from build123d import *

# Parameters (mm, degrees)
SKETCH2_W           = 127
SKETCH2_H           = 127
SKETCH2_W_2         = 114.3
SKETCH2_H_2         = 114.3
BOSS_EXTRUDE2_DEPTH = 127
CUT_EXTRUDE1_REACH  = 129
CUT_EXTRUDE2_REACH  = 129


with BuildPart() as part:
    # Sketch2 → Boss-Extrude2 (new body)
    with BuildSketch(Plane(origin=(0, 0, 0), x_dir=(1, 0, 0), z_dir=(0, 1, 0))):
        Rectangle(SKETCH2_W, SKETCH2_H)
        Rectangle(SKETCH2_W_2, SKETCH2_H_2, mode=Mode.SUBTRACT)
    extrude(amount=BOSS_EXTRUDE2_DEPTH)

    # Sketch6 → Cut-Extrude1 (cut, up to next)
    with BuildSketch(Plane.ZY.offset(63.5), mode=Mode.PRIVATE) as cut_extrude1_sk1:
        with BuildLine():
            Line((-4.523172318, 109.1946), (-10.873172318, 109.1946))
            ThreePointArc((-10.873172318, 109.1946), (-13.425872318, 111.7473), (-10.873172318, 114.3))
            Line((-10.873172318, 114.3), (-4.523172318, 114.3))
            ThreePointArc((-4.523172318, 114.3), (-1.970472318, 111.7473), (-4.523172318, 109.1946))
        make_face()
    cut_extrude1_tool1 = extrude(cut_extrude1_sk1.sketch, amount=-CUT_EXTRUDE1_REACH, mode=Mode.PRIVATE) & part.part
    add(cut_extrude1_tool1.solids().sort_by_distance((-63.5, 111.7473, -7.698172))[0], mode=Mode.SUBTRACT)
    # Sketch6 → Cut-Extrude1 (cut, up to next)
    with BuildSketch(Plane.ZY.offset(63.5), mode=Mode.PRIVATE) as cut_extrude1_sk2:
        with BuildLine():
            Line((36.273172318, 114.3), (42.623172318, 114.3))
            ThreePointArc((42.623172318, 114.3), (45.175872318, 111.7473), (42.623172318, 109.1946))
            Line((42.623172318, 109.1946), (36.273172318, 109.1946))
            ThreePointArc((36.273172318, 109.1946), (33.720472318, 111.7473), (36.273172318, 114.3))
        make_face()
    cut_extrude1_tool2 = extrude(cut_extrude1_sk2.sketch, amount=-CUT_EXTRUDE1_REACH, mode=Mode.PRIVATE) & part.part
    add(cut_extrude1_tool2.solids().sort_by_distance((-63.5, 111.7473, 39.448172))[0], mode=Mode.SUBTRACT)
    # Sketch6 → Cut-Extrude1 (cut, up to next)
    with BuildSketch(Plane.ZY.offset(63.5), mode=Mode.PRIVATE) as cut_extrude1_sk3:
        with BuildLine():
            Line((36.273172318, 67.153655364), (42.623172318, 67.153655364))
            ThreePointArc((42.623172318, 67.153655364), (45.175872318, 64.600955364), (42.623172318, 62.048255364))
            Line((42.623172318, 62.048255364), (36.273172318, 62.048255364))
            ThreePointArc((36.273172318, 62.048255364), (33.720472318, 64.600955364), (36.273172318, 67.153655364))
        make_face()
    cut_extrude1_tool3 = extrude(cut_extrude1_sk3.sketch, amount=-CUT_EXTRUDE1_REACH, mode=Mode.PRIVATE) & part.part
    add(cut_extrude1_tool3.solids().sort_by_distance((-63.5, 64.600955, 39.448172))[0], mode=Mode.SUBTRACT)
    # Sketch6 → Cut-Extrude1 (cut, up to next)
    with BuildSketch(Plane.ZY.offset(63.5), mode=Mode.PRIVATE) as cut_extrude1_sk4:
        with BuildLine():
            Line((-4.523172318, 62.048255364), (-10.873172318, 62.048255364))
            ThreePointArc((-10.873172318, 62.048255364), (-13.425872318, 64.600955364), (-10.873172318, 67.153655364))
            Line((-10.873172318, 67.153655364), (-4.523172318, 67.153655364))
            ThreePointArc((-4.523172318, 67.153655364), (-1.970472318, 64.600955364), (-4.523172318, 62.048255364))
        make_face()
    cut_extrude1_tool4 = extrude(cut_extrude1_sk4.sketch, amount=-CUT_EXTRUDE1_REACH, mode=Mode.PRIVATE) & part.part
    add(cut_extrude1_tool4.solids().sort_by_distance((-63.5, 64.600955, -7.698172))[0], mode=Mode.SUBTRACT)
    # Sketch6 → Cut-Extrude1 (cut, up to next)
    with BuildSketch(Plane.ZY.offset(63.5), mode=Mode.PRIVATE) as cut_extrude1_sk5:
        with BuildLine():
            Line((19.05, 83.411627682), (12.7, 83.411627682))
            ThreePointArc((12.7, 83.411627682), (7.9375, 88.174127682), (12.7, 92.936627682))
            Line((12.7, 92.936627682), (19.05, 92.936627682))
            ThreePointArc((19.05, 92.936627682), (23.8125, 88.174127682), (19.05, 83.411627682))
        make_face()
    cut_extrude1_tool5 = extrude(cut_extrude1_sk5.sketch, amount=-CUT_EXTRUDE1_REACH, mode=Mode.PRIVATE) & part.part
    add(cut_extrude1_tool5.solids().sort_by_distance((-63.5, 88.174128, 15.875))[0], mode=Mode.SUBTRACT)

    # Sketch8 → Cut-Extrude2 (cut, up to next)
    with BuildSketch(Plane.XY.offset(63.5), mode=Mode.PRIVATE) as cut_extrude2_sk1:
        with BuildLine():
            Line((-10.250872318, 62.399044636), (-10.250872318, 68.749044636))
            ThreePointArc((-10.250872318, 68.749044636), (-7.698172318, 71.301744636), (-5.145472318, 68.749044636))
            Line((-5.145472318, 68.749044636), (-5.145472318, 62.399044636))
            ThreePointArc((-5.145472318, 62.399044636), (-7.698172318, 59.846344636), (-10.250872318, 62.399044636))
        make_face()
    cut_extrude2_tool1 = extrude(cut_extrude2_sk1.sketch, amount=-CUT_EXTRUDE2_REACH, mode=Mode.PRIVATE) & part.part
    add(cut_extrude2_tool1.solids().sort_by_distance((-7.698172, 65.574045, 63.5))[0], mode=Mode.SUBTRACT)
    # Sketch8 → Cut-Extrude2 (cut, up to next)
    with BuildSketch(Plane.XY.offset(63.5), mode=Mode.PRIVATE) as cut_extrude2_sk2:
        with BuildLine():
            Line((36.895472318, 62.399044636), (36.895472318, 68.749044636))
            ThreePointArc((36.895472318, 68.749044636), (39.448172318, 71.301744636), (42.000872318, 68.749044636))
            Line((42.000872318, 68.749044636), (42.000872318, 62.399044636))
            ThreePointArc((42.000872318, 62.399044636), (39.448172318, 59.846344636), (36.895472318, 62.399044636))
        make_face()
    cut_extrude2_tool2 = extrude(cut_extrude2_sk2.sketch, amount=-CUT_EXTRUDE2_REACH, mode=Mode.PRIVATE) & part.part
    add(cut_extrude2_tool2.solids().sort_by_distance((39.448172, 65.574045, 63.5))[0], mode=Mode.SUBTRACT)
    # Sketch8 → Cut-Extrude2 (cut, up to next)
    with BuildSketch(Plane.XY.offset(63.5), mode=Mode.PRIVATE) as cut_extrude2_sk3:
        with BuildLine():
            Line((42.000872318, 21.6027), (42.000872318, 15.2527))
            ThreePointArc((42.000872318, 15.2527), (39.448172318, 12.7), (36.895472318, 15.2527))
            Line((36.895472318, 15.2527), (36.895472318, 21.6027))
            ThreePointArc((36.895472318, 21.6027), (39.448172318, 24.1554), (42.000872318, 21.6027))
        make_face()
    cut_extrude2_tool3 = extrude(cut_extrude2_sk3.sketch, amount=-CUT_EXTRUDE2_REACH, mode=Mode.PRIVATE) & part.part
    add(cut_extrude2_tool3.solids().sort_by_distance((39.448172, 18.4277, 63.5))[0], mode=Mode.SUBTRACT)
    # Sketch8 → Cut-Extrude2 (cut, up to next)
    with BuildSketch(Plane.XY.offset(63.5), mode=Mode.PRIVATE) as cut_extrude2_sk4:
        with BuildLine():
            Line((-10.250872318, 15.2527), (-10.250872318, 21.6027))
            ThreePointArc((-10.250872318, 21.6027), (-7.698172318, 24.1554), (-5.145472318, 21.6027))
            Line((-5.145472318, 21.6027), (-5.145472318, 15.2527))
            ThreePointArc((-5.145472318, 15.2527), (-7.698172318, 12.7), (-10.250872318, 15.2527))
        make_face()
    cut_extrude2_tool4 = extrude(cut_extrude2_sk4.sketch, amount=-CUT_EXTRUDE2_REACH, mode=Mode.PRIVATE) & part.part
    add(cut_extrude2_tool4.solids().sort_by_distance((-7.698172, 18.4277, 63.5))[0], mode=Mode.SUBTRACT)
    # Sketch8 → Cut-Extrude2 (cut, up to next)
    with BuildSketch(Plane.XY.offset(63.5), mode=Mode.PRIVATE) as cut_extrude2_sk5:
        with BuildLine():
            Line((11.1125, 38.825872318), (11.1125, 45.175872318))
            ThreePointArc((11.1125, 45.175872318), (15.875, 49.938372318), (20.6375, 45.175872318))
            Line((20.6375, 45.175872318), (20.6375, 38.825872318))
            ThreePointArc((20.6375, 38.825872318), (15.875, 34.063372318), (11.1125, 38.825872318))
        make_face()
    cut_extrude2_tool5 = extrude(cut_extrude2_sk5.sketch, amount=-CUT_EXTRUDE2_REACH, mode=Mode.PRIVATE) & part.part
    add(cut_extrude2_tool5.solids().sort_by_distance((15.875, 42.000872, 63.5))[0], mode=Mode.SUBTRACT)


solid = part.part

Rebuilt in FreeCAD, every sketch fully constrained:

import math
import FreeCAD as App
import Part
import Sketcher
Q = App.Units.Quantity

doc = App.newDocument("Part")
body = doc.addObject("PartDesign::Body", "Body")

sketch1 = body.newObject("Sketcher::SketchObject", "Sketch")
sketch1.AttachmentSupport = (doc.getObject("XZ_Plane"), [""])
sketch1.MapMode = "FlatFace"
sketch1.addGeometry(Part.LineSegment(App.Vector(-64, -64, 0), App.Vector(-64, 64, 0)), False)
sketch1.addGeometry(Part.LineSegment(App.Vector(-64, 64, 0), App.Vector(64, 64, 0)), False)
sketch1.addGeometry(Part.LineSegment(App.Vector(64, 64, 0), App.Vector(64, -64, 0)), False)
sketch1.addGeometry(Part.LineSegment(App.Vector(64, -64, 0), App.Vector(-64, -64, 0)), False)
sketch1.addGeometry(Part.LineSegment(App.Vector(57, 57, 0), App.Vector(-57, 57, 0)), False)
sketch1.addGeometry(Part.LineSegment(App.Vector(-57, 57, 0), App.Vector(-57, -57, 0)), False)
sketch1.addGeometry(Part.LineSegment(App.Vector(-57, -57, 0), App.Vector(57, -57, 0)), False)
sketch1.addGeometry(Part.LineSegment(App.Vector(57, -57, 0), App.Vector(57, 57, 0)), False)
sketch1.addConstraint(Sketcher.Constraint("Coincident", 0, 2, 1, 1))
sketch1.addConstraint(Sketcher.Constraint("Coincident", 1, 2, 2, 1))
sketch1.addConstraint(Sketcher.Constraint("Coincident", 2, 2, 3, 1))
sketch1.addConstraint(Sketcher.Constraint("Coincident", 3, 2, 0, 1))
sketch1.addConstraint(Sketcher.Constraint("Coincident", 4, 2, 5, 1))
sketch1.addConstraint(Sketcher.Constraint("Coincident", 5, 2, 6, 1))
sketch1.addConstraint(Sketcher.Constraint("Coincident", 6, 2, 7, 1))
sketch1.addConstraint(Sketcher.Constraint("Coincident", 7, 2, 4, 1))
sketch1.addConstraint(Sketcher.Constraint("Vertical", 0))
sketch1.addConstraint(Sketcher.Constraint("Horizontal", 1))
sketch1.addConstraint(Sketcher.Constraint("Vertical", 2))
sketch1.addConstraint(Sketcher.Constraint("Horizontal", 3))
sketch1.addConstraint(Sketcher.Constraint("Horizontal", 4))
sketch1.addConstraint(Sketcher.Constraint("Vertical", 5))
sketch1.addConstraint(Sketcher.Constraint("Horizontal", 6))
sketch1.addConstraint(Sketcher.Constraint("Vertical", 7))
sketch1.addConstraint(Sketcher.Constraint("Symmetric", 0, 2, 2, 2, -1, 1))
sketch1.addConstraint(Sketcher.Constraint("Symmetric", 4, 2, 6, 2, -1, 1))
sketch1.addConstraint(Sketcher.Constraint("Equal", 3, 0))
sketch1.addConstraint(Sketcher.Constraint("Equal", 6, 5))
sketch1.addConstraint(Sketcher.Constraint("DistanceX", 1, 1, 1, 2, Q("5 in")))
sketch1.addConstraint(Sketcher.Constraint("DistanceX", 4, 2, 4, 1, Q("4.5 in")))
pad1 = body.newObject("PartDesign::Pad", "Pad")
pad1.Profile = sketch1
pad1.Length = Q("5 in")
pad1.Reversed = True

sketch2 = body.newObject("Sketcher::SketchObject", "Sketch001")
sketch2.AttachmentSupport = (doc.getObject("YZ_Plane"), [""])
sketch2.MapMode = "FlatFace"
sketch2.AttachmentOffset = App.Placement(App.Vector(0, 0, -2.5 * 25.4), App.Rotation())
sketch2.addGeometry(Part.LineSegment(App.Vector(109.2, -10.9, 0), App.Vector(109.2, -4.5, 0)), False)
sketch2.addGeometry(Part.ArcOfCircle(Part.Circle(App.Vector(111.7, -4.5, 0), App.Vector(0, 0, 1), 2.6), math.radians(0), math.radians(180)), False)
sketch2.addGeometry(Part.LineSegment(App.Vector(114.3, -4.5, 0), App.Vector(114.3, -10.9, 0)), False)
sketch2.addGeometry(Part.ArcOfCircle(Part.Circle(App.Vector(111.7, -10.9, 0), App.Vector(0, 0, 1), 2.6), math.radians(180), math.radians(360)), False)
sketch2.addConstraint(Sketcher.Constraint("Tangent", 0, 2, 1, 2))
sketch2.addConstraint(Sketcher.Constraint("Tangent", 1, 1, 2, 1))
sketch2.addConstraint(Sketcher.Constraint("Tangent", 2, 2, 3, 2))
sketch2.addConstraint(Sketcher.Constraint("Tangent", 3, 1, 0, 1))
sketch2.addConstraint(Sketcher.Constraint("Vertical", 0))
sketch2.addConstraint(Sketcher.Constraint("Vertical", 2))
sketch2.addConstraint(Sketcher.Constraint("DistanceY", 0, 1, 0, 2, Q("0.25 in")))
sketch2.addConstraint(Sketcher.Constraint("DistanceX", -1, 1, 1, 1, Q("4.5 in")))
sketch2.addConstraint(Sketcher.Constraint("Radius", 1, Q("0.1005 in")))
sketch2.addConstraint(Sketcher.Constraint("DistanceY", 1, 3, -1, 1, Q("4.523172 mm")))
pocket1 = body.newObject("PartDesign::Pocket", "Pocket")
pocket1.Profile = sketch2
pocket1.Type = "UpToFirst"
pocket1.Reversed = True

sketch3 = body.newObject("Sketcher::SketchObject", "Sketch002")
sketch3.AttachmentSupport = (doc.getObject("YZ_Plane"), [""])
sketch3.MapMode = "FlatFace"
sketch3.AttachmentOffset = App.Placement(App.Vector(0, 0, -2.5 * 25.4), App.Rotation())
sketch3.addGeometry(Part.LineSegment(App.Vector(114.3, 42.6, 0), App.Vector(114.3, 36.3, 0)), False)
sketch3.addGeometry(Part.ArcOfCircle(Part.Circle(App.Vector(111.7, 36.3, 0), App.Vector(0, 0, 1), 2.6), math.radians(180), math.radians(360)), False)
sketch3.addGeometry(Part.LineSegment(App.Vector(109.2, 36.3, 0), App.Vector(109.2, 42.6, 0)), False)
sketch3.addGeometry(Part.ArcOfCircle(Part.Circle(App.Vector(111.7, 42.6, 0), App.Vector(0, 0, 1), 2.6), math.radians(0), math.radians(180)), False)
sketch3.addConstraint(Sketcher.Constraint("Tangent", 0, 2, 1, 2))
sketch3.addConstraint(Sketcher.Constraint("Tangent", 1, 1, 2, 1))
sketch3.addConstraint(Sketcher.Constraint("Tangent", 2, 2, 3, 2))
sketch3.addConstraint(Sketcher.Constraint("Tangent", 3, 1, 0, 1))
sketch3.addConstraint(Sketcher.Constraint("Vertical", 0))
sketch3.addConstraint(Sketcher.Constraint("Vertical", 2))
sketch3.addConstraint(Sketcher.Constraint("DistanceY", 0, 2, 0, 1, Q("0.25 in")))
sketch3.addConstraint(Sketcher.Constraint("DistanceX", -1, 1, 0, 2, Q("4.5 in")))
sketch3.addConstraint(Sketcher.Constraint("Radius", 1, Q("0.1005 in")))
sketch3.addConstraint(Sketcher.Constraint("DistanceY", -1, 1, 1, 3, Q("36.273172 mm")))
pocket2 = body.newObject("PartDesign::Pocket", "Pocket001")
pocket2.Profile = sketch3
pocket2.Type = "UpToFirst"
pocket2.Reversed = True

sketch4 = body.newObject("Sketcher::SketchObject", "Sketch003")
sketch4.AttachmentSupport = (doc.getObject("YZ_Plane"), [""])
sketch4.MapMode = "FlatFace"
sketch4.AttachmentOffset = App.Placement(App.Vector(0, 0, -2.5 * 25.4), App.Rotation())
sketch4.addGeometry(Part.LineSegment(App.Vector(67.2, 42.6, 0), App.Vector(67.2, 36.3, 0)), False)
sketch4.addGeometry(Part.ArcOfCircle(Part.Circle(App.Vector(64.6, 36.3, 0), App.Vector(0, 0, 1), 2.6), math.radians(180), math.radians(360)), False)
sketch4.addGeometry(Part.LineSegment(App.Vector(62, 36.3, 0), App.Vector(62, 42.6, 0)), False)
sketch4.addGeometry(Part.ArcOfCircle(Part.Circle(App.Vector(64.6, 42.6, 0), App.Vector(0, 0, 1), 2.6), math.radians(0), math.radians(180)), False)
sketch4.addConstraint(Sketcher.Constraint("Tangent", 0, 2, 1, 2))
sketch4.addConstraint(Sketcher.Constraint("Tangent", 1, 1, 2, 1))
sketch4.addConstraint(Sketcher.Constraint("Tangent", 2, 2, 3, 2))
sketch4.addConstraint(Sketcher.Constraint("Tangent", 3, 1, 0, 1))
sketch4.addConstraint(Sketcher.Constraint("Vertical", 0))
sketch4.addConstraint(Sketcher.Constraint("Vertical", 2))
sketch4.addConstraint(Sketcher.Constraint("DistanceY", 0, 2, 0, 1, Q("0.25 in")))
sketch4.addConstraint(Sketcher.Constraint("Radius", 1, Q("0.1005 in")))
sketch4.addConstraint(Sketcher.Constraint("DistanceX", -1, 1, 1, 3, Q("64.600955 mm")))
sketch4.addConstraint(Sketcher.Constraint("DistanceY", -1, 1, 1, 3, Q("36.273172 mm")))
pocket3 = body.newObject("PartDesign::Pocket", "Pocket002")
pocket3.Profile = sketch4
pocket3.Type = "UpToFirst"
pocket3.Reversed = True

sketch5 = body.newObject("Sketcher::SketchObject", "Sketch004")
sketch5.AttachmentSupport = (doc.getObject("YZ_Plane"), [""])
sketch5.MapMode = "FlatFace"
sketch5.AttachmentOffset = App.Placement(App.Vector(0, 0, -2.5 * 25.4), App.Rotation())
sketch5.addGeometry(Part.LineSegment(App.Vector(62, -10.9, 0), App.Vector(62, -4.5, 0)), False)
sketch5.addGeometry(Part.ArcOfCircle(Part.Circle(App.Vector(64.6, -4.5, 0), App.Vector(0, 0, 1), 2.6), math.radians(0), math.radians(180)), False)
sketch5.addGeometry(Part.LineSegment(App.Vector(67.2, -4.5, 0), App.Vector(67.2, -10.9, 0)), False)
sketch5.addGeometry(Part.ArcOfCircle(Part.Circle(App.Vector(64.6, -10.9, 0), App.Vector(0, 0, 1), 2.6), math.radians(180), math.radians(360)), False)
sketch5.addConstraint(Sketcher.Constraint("Tangent", 0, 2, 1, 2))
sketch5.addConstraint(Sketcher.Constraint("Tangent", 1, 1, 2, 1))
sketch5.addConstraint(Sketcher.Constraint("Tangent", 2, 2, 3, 2))
sketch5.addConstraint(Sketcher.Constraint("Tangent", 3, 1, 0, 1))
sketch5.addConstraint(Sketcher.Constraint("Vertical", 0))
sketch5.addConstraint(Sketcher.Constraint("Vertical", 2))
sketch5.addConstraint(Sketcher.Constraint("DistanceY", 0, 1, 0, 2, Q("0.25 in")))
sketch5.addConstraint(Sketcher.Constraint("Radius", 1, Q("0.1005 in")))
sketch5.addConstraint(Sketcher.Constraint("DistanceX", -1, 1, 1, 3, Q("64.600955 mm")))
sketch5.addConstraint(Sketcher.Constraint("DistanceY", 1, 3, -1, 1, Q("4.523172 mm")))
pocket4 = body.newObject("PartDesign::Pocket", "Pocket003")
pocket4.Profile = sketch5
pocket4.Type = "UpToFirst"
pocket4.Reversed = True

sketch6 = body.newObject("Sketcher::SketchObject", "Sketch005")
sketch6.AttachmentSupport = (doc.getObject("YZ_Plane"), [""])
sketch6.MapMode = "FlatFace"
sketch6.AttachmentOffset = App.Placement(App.Vector(0, 0, -2.5 * 25.4), App.Rotation())
sketch6.addGeometry(Part.LineSegment(App.Vector(83.4, 12.7, 0), App.Vector(83.4, 19.1, 0)), False)
sketch6.addGeometry(Part.ArcOfCircle(Part.Circle(App.Vector(88.2, 19.1, 0), App.Vector(0, 0, 1), 4.8), math.radians(0), math.radians(180)), False)
sketch6.addGeometry(Part.LineSegment(App.Vector(92.9, 19.1, 0), App.Vector(92.9, 12.7, 0)), False)
sketch6.addGeometry(Part.ArcOfCircle(Part.Circle(App.Vector(88.2, 12.7, 0), App.Vector(0, 0, 1), 4.8), math.radians(180), math.radians(360)), False)
sketch6.addConstraint(Sketcher.Constraint("Tangent", 0, 2, 1, 2))
sketch6.addConstraint(Sketcher.Constraint("Tangent", 1, 1, 2, 1))
sketch6.addConstraint(Sketcher.Constraint("Tangent", 2, 2, 3, 2))
sketch6.addConstraint(Sketcher.Constraint("Tangent", 3, 1, 0, 1))
sketch6.addConstraint(Sketcher.Constraint("Vertical", 0))
sketch6.addConstraint(Sketcher.Constraint("Vertical", 2))
sketch6.addConstraint(Sketcher.Constraint("Radius", 1, Q("0.1875 in")))
sketch6.addConstraint(Sketcher.Constraint("DistanceY", 0, 1, 0, 2, Q("0.25 in")))
sketch6.addConstraint(Sketcher.Constraint("DistanceY", -1, 1, 3, 3, Q("0.5 in")))
sketch6.addConstraint(Sketcher.Constraint("DistanceX", -1, 1, 1, 3, Q("88.174128 mm")))
pocket5 = body.newObject("PartDesign::Pocket", "Pocket004")
pocket5.Profile = sketch6
pocket5.Type = "UpToFirst"
pocket5.Reversed = True

sketch7 = body.newObject("Sketcher::SketchObject", "Sketch006")
sketch7.AttachmentSupport = (doc.getObject("XY_Plane"), [""])
sketch7.MapMode = "FlatFace"
sketch7.AttachmentOffset = App.Placement(App.Vector(0, 0, 2.5 * 25.4), App.Rotation())
sketch7.addGeometry(Part.LineSegment(App.Vector(-10.3, 68.7, 0), App.Vector(-10.3, 62.4, 0)), False)
sketch7.addGeometry(Part.ArcOfCircle(Part.Circle(App.Vector(-7.7, 62.4, 0), App.Vector(0, 0, 1), 2.6), math.radians(180), math.radians(360)), False)
sketch7.addGeometry(Part.LineSegment(App.Vector(-5.1, 62.4, 0), App.Vector(-5.1, 68.7, 0)), False)
sketch7.addGeometry(Part.ArcOfCircle(Part.Circle(App.Vector(-7.7, 68.7, 0), App.Vector(0, 0, 1), 2.6), math.radians(0), math.radians(180)), False)
sketch7.addConstraint(Sketcher.Constraint("Tangent", 0, 2, 1, 1))
sketch7.addConstraint(Sketcher.Constraint("Tangent", 1, 2, 2, 1))
sketch7.addConstraint(Sketcher.Constraint("Tangent", 2, 2, 3, 1))
sketch7.addConstraint(Sketcher.Constraint("Tangent", 3, 2, 0, 1))
sketch7.addConstraint(Sketcher.Constraint("Vertical", 0))
sketch7.addConstraint(Sketcher.Constraint("Vertical", 2))
sketch7.addConstraint(Sketcher.Constraint("DistanceY", 0, 2, 0, 1, Q("0.25 in")))
sketch7.addConstraint(Sketcher.Constraint("Radius", 1, Q("0.1005 in")))
sketch7.addConstraint(Sketcher.Constraint("DistanceX", 1, 3, -1, 1, Q("7.698172 mm")))
sketch7.addConstraint(Sketcher.Constraint("DistanceY", -1, 1, 1, 3, Q("62.399045 mm")))
pocket6 = body.newObject("PartDesign::Pocket", "Pocket005")
pocket6.Profile = sketch7
pocket6.Type = "UpToFirst"

sketch8 = body.newObject("Sketcher::SketchObject", "Sketch007")
sketch8.AttachmentSupport = (doc.getObject("XY_Plane"), [""])
sketch8.MapMode = "FlatFace"
sketch8.AttachmentOffset = App.Placement(App.Vector(0, 0, 2.5 * 25.4), App.Rotation())
sketch8.addGeometry(Part.LineSegment(App.Vector(36.9, 68.7, 0), App.Vector(36.9, 62.4, 0)), False)
sketch8.addGeometry(Part.ArcOfCircle(Part.Circle(App.Vector(39.4, 62.4, 0), App.Vector(0, 0, 1), 2.6), math.radians(180), math.radians(360)), False)
sketch8.addGeometry(Part.LineSegment(App.Vector(42, 62.4, 0), App.Vector(42, 68.7, 0)), False)
sketch8.addGeometry(Part.ArcOfCircle(Part.Circle(App.Vector(39.4, 68.7, 0), App.Vector(0, 0, 1), 2.6), math.radians(0), math.radians(180)), False)
sketch8.addConstraint(Sketcher.Constraint("Tangent", 0, 2, 1, 1))
sketch8.addConstraint(Sketcher.Constraint("Tangent", 1, 2, 2, 1))
sketch8.addConstraint(Sketcher.Constraint("Tangent", 2, 2, 3, 1))
sketch8.addConstraint(Sketcher.Constraint("Tangent", 3, 2, 0, 1))
sketch8.addConstraint(Sketcher.Constraint("Vertical", 0))
sketch8.addConstraint(Sketcher.Constraint("Vertical", 2))
sketch8.addConstraint(Sketcher.Constraint("DistanceY", 0, 2, 0, 1, Q("0.25 in")))
sketch8.addConstraint(Sketcher.Constraint("Radius", 1, Q("0.1005 in")))
sketch8.addConstraint(Sketcher.Constraint("DistanceX", -1, 1, 1, 3, Q("39.448172 mm")))
sketch8.addConstraint(Sketcher.Constraint("DistanceY", -1, 1, 1, 3, Q("62.399045 mm")))
pocket7 = body.newObject("PartDesign::Pocket", "Pocket006")
pocket7.Profile = sketch8
pocket7.Type = "UpToFirst"

sketch9 = body.newObject("Sketcher::SketchObject", "Sketch008")
sketch9.AttachmentSupport = (doc.getObject("XY_Plane"), [""])
sketch9.MapMode = "FlatFace"
sketch9.AttachmentOffset = App.Placement(App.Vector(0, 0, 2.5 * 25.4), App.Rotation())
sketch9.addGeometry(Part.LineSegment(App.Vector(42, 15.3, 0), App.Vector(42, 21.6, 0)), False)
sketch9.addGeometry(Part.ArcOfCircle(Part.Circle(App.Vector(39.4, 21.6, 0), App.Vector(0, 0, 1), 2.6), math.radians(0), math.radians(180)), False)
sketch9.addGeometry(Part.LineSegment(App.Vector(36.9, 21.6, 0), App.Vector(36.9, 15.3, 0)), False)
sketch9.addGeometry(Part.ArcOfCircle(Part.Circle(App.Vector(39.4, 15.3, 0), App.Vector(0, 0, 1), 2.6), math.radians(180), math.radians(360)), False)
sketch9.addConstraint(Sketcher.Constraint("Tangent", 0, 2, 1, 1))
sketch9.addConstraint(Sketcher.Constraint("Tangent", 1, 2, 2, 1))
sketch9.addConstraint(Sketcher.Constraint("Tangent", 2, 2, 3, 1))
sketch9.addConstraint(Sketcher.Constraint("Tangent", 3, 2, 0, 1))
sketch9.addConstraint(Sketcher.Constraint("Vertical", 0))
sketch9.addConstraint(Sketcher.Constraint("Vertical", 2))
sketch9.addConstraint(Sketcher.Constraint("DistanceY", 0, 1, 0, 2, Q("0.25 in")))
sketch9.addConstraint(Sketcher.Constraint("Radius", 1, Q("0.1005 in")))
sketch9.addConstraint(Sketcher.Constraint("DistanceY", -1, 1, 1, 3, Q("0.8505 in")))
sketch9.addConstraint(Sketcher.Constraint("DistanceX", -1, 1, 1, 3, Q("39.448172 mm")))
pocket8 = body.newObject("PartDesign::Pocket", "Pocket007")
pocket8.Profile = sketch9
pocket8.Type = "UpToFirst"

sketch10 = body.newObject("Sketcher::SketchObject", "Sketch009")
sketch10.AttachmentSupport = (doc.getObject("XY_Plane"), [""])
sketch10.MapMode = "FlatFace"
sketch10.AttachmentOffset = App.Placement(App.Vector(0, 0, 2.5 * 25.4), App.Rotation())
sketch10.addGeometry(Part.LineSegment(App.Vector(-10.3, 21.6, 0), App.Vector(-10.3, 15.3, 0)), False)
sketch10.addGeometry(Part.ArcOfCircle(Part.Circle(App.Vector(-7.7, 15.3, 0), App.Vector(0, 0, 1), 2.6), math.radians(180), math.radians(360)), False)
sketch10.addGeometry(Part.LineSegment(App.Vector(-5.1, 15.3, 0), App.Vector(-5.1, 21.6, 0)), False)
sketch10.addGeometry(Part.ArcOfCircle(Part.Circle(App.Vector(-7.7, 21.6, 0), App.Vector(0, 0, 1), 2.6), math.radians(0), math.radians(180)), False)
sketch10.addConstraint(Sketcher.Constraint("Tangent", 0, 2, 1, 1))
sketch10.addConstraint(Sketcher.Constraint("Tangent", 1, 2, 2, 1))
sketch10.addConstraint(Sketcher.Constraint("Tangent", 2, 2, 3, 1))
sketch10.addConstraint(Sketcher.Constraint("Tangent", 3, 2, 0, 1))
sketch10.addConstraint(Sketcher.Constraint("Vertical", 0))
sketch10.addConstraint(Sketcher.Constraint("Vertical", 2))
sketch10.addConstraint(Sketcher.Constraint("DistanceY", 0, 2, 0, 1, Q("0.25 in")))
sketch10.addConstraint(Sketcher.Constraint("Radius", 1, Q("0.1005 in")))
sketch10.addConstraint(Sketcher.Constraint("DistanceY", -1, 1, 1, 3, Q("0.6005 in")))
sketch10.addConstraint(Sketcher.Constraint("DistanceX", 1, 3, -1, 1, Q("7.698172 mm")))
pocket9 = body.newObject("PartDesign::Pocket", "Pocket008")
pocket9.Profile = sketch10
pocket9.Type = "UpToFirst"

sketch11 = body.newObject("Sketcher::SketchObject", "Sketch010")
sketch11.AttachmentSupport = (doc.getObject("XY_Plane"), [""])
sketch11.MapMode = "FlatFace"
sketch11.AttachmentOffset = App.Placement(App.Vector(0, 0, 2.5 * 25.4), App.Rotation())
sketch11.addGeometry(Part.LineSegment(App.Vector(11.1, 45.2, 0), App.Vector(11.1, 38.8, 0)), False)
sketch11.addGeometry(Part.ArcOfCircle(Part.Circle(App.Vector(15.9, 38.8, 0), App.Vector(0, 0, 1), 4.8), math.radians(180), math.radians(360)), False)
sketch11.addGeometry(Part.LineSegment(App.Vector(20.6, 38.8, 0), App.Vector(20.6, 45.2, 0)), False)
sketch11.addGeometry(Part.ArcOfCircle(Part.Circle(App.Vector(15.9, 45.2, 0), App.Vector(0, 0, 1), 4.8), math.radians(0), math.radians(180)), False)
sketch11.addConstraint(Sketcher.Constraint("Tangent", 0, 2, 1, 1))
sketch11.addConstraint(Sketcher.Constraint("Tangent", 1, 2, 2, 1))
sketch11.addConstraint(Sketcher.Constraint("Tangent", 2, 2, 3, 1))
sketch11.addConstraint(Sketcher.Constraint("Tangent", 3, 2, 0, 1))
sketch11.addConstraint(Sketcher.Constraint("Vertical", 0))
sketch11.addConstraint(Sketcher.Constraint("Vertical", 2))
sketch11.addConstraint(Sketcher.Constraint("Radius", 1, Q("0.1875 in")))
sketch11.addConstraint(Sketcher.Constraint("DistanceY", 0, 2, 0, 1, Q("0.25 in")))
sketch11.addConstraint(Sketcher.Constraint("DistanceX", -1, 1, 1, 3, Q("0.625 in")))
sketch11.addConstraint(Sketcher.Constraint("DistanceY", -1, 1, 1, 3, Q("38.825872 mm")))
pocket10 = body.newObject("PartDesign::Pocket", "Pocket009")
pocket10.Profile = sketch11
pocket10.Type = "UpToFirst"

doc.recompute()
